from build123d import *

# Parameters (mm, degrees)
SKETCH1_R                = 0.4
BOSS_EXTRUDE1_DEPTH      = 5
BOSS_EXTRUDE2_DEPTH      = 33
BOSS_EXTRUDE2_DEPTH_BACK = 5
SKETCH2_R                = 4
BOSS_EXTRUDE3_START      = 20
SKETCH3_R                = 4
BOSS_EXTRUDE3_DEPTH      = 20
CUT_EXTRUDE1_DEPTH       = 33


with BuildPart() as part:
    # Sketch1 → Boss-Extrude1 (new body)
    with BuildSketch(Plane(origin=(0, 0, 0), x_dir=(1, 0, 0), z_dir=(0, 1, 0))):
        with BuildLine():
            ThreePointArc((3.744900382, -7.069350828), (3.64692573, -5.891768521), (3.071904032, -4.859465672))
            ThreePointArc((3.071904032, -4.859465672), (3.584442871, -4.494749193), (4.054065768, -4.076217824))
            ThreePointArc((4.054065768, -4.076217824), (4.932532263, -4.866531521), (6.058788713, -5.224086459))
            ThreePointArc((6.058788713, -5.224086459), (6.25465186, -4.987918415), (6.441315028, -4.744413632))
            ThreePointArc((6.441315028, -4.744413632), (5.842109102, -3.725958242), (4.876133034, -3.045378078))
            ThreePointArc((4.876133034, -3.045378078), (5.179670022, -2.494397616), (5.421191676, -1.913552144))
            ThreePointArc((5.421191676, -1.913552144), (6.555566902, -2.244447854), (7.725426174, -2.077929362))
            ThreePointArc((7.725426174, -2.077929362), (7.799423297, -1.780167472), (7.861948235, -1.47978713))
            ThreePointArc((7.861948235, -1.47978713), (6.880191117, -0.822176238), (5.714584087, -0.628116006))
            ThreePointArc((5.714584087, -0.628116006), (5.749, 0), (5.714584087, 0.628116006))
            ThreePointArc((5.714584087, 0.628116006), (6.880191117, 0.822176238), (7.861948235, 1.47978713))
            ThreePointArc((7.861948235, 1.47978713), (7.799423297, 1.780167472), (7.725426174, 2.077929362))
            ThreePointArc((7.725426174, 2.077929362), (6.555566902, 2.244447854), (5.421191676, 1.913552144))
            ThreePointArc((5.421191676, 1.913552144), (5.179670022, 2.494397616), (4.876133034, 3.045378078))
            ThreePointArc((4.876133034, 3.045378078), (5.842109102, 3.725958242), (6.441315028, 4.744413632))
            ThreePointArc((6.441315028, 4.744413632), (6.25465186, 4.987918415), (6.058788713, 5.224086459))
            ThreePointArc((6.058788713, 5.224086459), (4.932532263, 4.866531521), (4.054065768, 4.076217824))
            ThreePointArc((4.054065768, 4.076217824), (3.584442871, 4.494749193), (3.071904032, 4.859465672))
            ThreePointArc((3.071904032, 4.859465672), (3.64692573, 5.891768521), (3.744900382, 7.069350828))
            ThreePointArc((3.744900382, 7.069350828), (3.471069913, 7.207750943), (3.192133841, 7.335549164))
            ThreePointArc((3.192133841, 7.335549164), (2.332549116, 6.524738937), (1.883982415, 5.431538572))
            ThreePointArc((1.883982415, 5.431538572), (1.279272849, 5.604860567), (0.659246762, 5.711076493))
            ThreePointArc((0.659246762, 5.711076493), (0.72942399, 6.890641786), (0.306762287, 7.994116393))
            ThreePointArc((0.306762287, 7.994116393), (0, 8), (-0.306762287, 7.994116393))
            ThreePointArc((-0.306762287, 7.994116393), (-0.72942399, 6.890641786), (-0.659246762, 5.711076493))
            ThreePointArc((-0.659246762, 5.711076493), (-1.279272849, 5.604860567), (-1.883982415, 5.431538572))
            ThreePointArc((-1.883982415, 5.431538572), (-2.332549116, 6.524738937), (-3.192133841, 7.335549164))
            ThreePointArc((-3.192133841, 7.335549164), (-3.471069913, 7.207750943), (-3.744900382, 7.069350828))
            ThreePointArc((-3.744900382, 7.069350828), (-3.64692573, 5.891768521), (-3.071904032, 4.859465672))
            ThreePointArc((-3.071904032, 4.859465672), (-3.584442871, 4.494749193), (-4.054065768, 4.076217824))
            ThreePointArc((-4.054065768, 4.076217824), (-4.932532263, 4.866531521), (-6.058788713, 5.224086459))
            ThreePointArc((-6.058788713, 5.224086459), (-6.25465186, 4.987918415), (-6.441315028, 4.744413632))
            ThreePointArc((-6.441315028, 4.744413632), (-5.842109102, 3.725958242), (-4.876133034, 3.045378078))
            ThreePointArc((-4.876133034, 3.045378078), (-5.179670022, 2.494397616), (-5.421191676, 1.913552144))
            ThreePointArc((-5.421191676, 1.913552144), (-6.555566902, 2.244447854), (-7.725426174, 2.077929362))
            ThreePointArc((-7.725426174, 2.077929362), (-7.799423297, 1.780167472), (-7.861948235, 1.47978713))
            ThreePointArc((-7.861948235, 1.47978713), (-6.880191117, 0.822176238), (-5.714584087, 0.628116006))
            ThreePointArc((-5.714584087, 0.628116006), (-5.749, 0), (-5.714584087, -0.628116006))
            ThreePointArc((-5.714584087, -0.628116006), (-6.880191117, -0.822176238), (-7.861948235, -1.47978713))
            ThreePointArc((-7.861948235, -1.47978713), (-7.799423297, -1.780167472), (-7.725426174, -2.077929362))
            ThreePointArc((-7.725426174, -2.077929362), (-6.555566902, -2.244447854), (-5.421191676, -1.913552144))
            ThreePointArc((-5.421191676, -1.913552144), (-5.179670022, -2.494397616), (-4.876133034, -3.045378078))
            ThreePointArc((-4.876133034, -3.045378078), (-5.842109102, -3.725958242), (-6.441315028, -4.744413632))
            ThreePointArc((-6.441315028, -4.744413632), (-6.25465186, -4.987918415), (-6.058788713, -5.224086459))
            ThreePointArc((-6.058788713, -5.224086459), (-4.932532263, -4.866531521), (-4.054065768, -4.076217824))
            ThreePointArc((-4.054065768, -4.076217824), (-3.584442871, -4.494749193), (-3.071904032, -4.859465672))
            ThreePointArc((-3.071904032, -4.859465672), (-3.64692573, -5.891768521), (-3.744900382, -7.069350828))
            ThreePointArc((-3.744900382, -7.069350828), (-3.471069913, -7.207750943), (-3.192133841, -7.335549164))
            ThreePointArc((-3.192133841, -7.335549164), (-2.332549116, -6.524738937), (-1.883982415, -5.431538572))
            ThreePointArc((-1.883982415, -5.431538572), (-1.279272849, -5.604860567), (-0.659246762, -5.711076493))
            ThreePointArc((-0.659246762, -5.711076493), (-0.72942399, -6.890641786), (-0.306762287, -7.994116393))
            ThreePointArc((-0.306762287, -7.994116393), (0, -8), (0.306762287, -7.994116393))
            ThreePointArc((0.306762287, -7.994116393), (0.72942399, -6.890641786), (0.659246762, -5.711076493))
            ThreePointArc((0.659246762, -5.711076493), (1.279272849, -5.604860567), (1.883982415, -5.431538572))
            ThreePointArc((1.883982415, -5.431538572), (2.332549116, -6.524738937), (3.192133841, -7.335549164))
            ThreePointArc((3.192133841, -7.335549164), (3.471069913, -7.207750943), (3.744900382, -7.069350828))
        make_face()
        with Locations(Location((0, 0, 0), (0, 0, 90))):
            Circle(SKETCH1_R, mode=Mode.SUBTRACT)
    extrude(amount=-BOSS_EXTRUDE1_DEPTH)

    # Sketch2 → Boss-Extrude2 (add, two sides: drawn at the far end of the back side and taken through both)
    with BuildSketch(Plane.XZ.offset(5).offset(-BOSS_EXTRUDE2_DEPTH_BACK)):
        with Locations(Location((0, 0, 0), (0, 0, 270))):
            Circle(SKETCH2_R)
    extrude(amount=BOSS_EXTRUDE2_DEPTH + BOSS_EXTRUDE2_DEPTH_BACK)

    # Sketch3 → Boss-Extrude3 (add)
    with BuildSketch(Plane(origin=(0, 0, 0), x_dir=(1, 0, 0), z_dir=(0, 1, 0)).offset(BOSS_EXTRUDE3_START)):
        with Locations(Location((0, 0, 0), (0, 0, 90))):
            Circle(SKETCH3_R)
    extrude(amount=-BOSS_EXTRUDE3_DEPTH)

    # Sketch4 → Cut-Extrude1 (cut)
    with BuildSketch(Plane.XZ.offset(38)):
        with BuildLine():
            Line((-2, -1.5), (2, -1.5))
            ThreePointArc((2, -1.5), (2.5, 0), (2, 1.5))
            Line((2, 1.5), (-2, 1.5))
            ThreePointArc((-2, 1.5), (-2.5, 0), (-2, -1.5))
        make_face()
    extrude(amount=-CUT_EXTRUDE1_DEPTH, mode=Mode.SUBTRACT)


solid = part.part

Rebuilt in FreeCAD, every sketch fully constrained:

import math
import FreeCAD as App
import Part
import Sketcher
from FreeCAD import Vector

doc = App.newDocument("Part")
body = doc.addObject("PartDesign::Body", "Body")

sketch1 = body.newObject("Sketcher::SketchObject", "Sketch")
sketch1.AttachmentSupport = (doc.getObject("XZ_Plane"), [""])
sketch1.MapMode = "FlatFace"
sketch1.addGeometry([
    Part.ArcOfCircle(Part.Circle(Vector(0.97, 6.71, 0), Vector(0, 0, 1), 2.8), math.radians(-41), math.radians(7)),
    Part.ArcOfCircle(Part.Circle(Vector(0, 0, 0), Vector(0, 0, 1), 5.75), math.radians(45.16), math.radians(57.7)),
    Part.ArcOfCircle(Part.Circle(Vector(6.32, 2.44, 0), Vector(0, 0, 1), 2.8), math.radians(95), math.radians(144)),
    Part.ArcOfCircle(Part.Circle(Vector(0, 0, 0), Vector(0, 0, 1), 8), math.radians(36.37), math.radians(40.77)),
    Part.ArcOfCircle(Part.Circle(Vector(3.78, 5.62, 0), Vector(0, 0, 1), 2.8), math.radians(-67), math.radians(-18)),
    Part.ArcOfCircle(Part.Circle(Vector(0, 0, 0), Vector(0, 0, 1), 5.75), math.radians(19.44), math.radians(31.99)),
    Part.ArcOfCircle(Part.Circle(Vector(6.75, -0.55, 0), Vector(0, 0, 1), 2.8), math.radians(70), math.radians(118)),
    Part.ArcOfCircle(Part.Circle(Vector(0, 0, 0), Vector(0, 0, 1), 8), math.radians(10.66), math.radians(15.05)),
    Part.ArcOfCircle(Part.Circle(Vector(5.85, 3.42, 0), Vector(0, 0, 1), 2.8), math.radians(-93), math.radians(-44)),
    Part.ArcOfCircle(Part.Circle(Vector(0, 0, 0), Vector(0, 0, 1), 5.75), math.radians(-6.27), math.radians(6.27)),
    Part.ArcOfCircle(Part.Circle(Vector(5.85, -3.42, 0), Vector(0, 0, 1), 2.8), math.radians(44), math.radians(93)),
    Part.ArcOfCircle(Part.Circle(Vector(0, 0, 0), Vector(0, 0, 1), 8), math.radians(-15.05), math.radians(-10.66)),
    Part.ArcOfCircle(Part.Circle(Vector(6.75, 0.55, 0), Vector(0, 0, 1), 2.8), math.radians(-118), math.radians(-70)),
    Part.ArcOfCircle(Part.Circle(Vector(0, 0, 0), Vector(0, 0, 1), 5.75), math.radians(-31.99), math.radians(-19.44)),
    Part.ArcOfCircle(Part.Circle(Vector(3.78, -5.62, 0), Vector(0, 0, 1), 2.8), math.radians(18), math.radians(67)),
    Part.ArcOfCircle(Part.Circle(Vector(0, 0, 0), Vector(0, 0, 1), 8), math.radians(-40.77), math.radians(-36.37)),
    Part.ArcOfCircle(Part.Circle(Vector(6.32, -2.44, 0), Vector(0, 0, 1), 2.8), math.radians(-144), math.radians(-95)),
    Part.ArcOfCircle(Part.Circle(Vector(0, 0, 0), Vector(0, 0, 1), 5.75), math.radians(-57.7), math.radians(-45.16)),
    Part.ArcOfCircle(Part.Circle(Vector(0.97, -6.71, 0), Vector(0, 0, 1), 2.8), math.radians(-7), math.radians(41)),
    Part.ArcOfCircle(Part.Circle(Vector(0, 0, 0), Vector(0, 0, 1), 8), math.radians(-66.48), math.radians(-62.09)),
    Part.ArcOfCircle(Part.Circle(Vector(4.64, -4.94, 0), Vector(0, 0, 1), 2.8), math.radians(-170), math.radians(-121)),
    Part.ArcOfCircle(Part.Circle(Vector(0, 0, 0), Vector(0, 0, 1), 5.75), math.radians(-83.42), math.radians(-70.87)),
    Part.ArcOfCircle(Part.Circle(Vector(-2.04, -6.46, 0), Vector(0, 0, 1), 2.8), math.radians(-33), math.radians(16)),
    Part.ArcOfCircle(Part.Circle(Vector(0, 0, 0), Vector(0, 0, 1), 8), math.radians(-92.2), math.radians(-87.8)),
    Part.ArcOfCircle(Part.Circle(Vector(2.04, -6.46, 0), Vector(0, 0, 1), 2.8), math.radians(164), math.radians(213)),
    Part.ArcOfCircle(Part.Circle(Vector(0, 0, 0), Vector(0, 0, 1), 5.75), math.radians(-109.13), math.radians(-96.58)),
    Part.ArcOfCircle(Part.Circle(Vector(-4.64, -4.94, 0), Vector(0, 0, 1), 2.8), math.radians(-59), math.radians(-10)),
    Part.ArcOfCircle(Part.Circle(Vector(0, 0, 0), Vector(0, 0, 1), 8), math.radians(-117.91), math.radians(-113.52)),
    Part.ArcOfCircle(Part.Circle(Vector(-0.97, -6.71, 0), Vector(0, 0, 1), 2.8), math.radians(139), math.radians(187)),
    Part.ArcOfCircle(Part.Circle(Vector(0, 0, 0), Vector(0, 0, 1), 5.75), math.radians(-134.84), math.radians(-122.3)),
    Part.ArcOfCircle(Part.Circle(Vector(-6.32, -2.44, 0), Vector(0, 0, 1), 2.8), math.radians(-85), math.radians(-36)),
    Part.ArcOfCircle(Part.Circle(Vector(0, 0, 0), Vector(0, 0, 1), 8), math.radians(-143.63), math.radians(-139.23)),
    Part.ArcOfCircle(Part.Circle(Vector(-3.78, -5.62, 0), Vector(0, 0, 1), 2.8), math.radians(113), math.radians(162)),
    Part.ArcOfCircle(Part.Circle(Vector(0, 0, 0), Vector(0, 0, 1), 5.75), math.radians(-160.56), math.radians(-148.01)),
    Part.ArcOfCircle(Part.Circle(Vector(-6.75, 0.55, 0), Vector(0, 0, 1), 2.8), math.radians(-110), math.radians(-62)),
    Part.ArcOfCircle(Part.Circle(Vector(0, 0, 0), Vector(0, 0, 1), 8), math.radians(-169.34), math.radians(-164.95)),
    Part.ArcOfCircle(Part.Circle(Vector(-5.85, -3.42, 0), Vector(0, 0, 1), 2.8), math.radians(87), math.radians(136)),
    Part.ArcOfCircle(Part.Circle(Vector(0, 0, 0), Vector(0, 0, 1), 5.75), math.radians(173.73), math.radians(186.27)),
    Part.ArcOfCircle(Part.Circle(Vector(-5.85, 3.42, 0), Vector(0, 0, 1), 2.8), math.radians(-136), math.radians(-87)),
    Part.ArcOfCircle(Part.Circle(Vector(0, 0, 0), Vector(0, 0, 1), 8), math.radians(164.95), math.radians(169.34)),
    Part.ArcOfCircle(Part.Circle(Vector(-6.75, -0.55, 0), Vector(0, 0, 1), 2.8), math.radians(62), math.radians(110)),
    Part.ArcOfCircle(Part.Circle(Vector(0, 0, 0), Vector(0, 0, 1), 5.75), math.radians(148.01), math.radians(160.56)),
    Part.ArcOfCircle(Part.Circle(Vector(-3.78, 5.62, 0), Vector(0, 0, 1), 2.8), math.radians(-162), math.radians(-113)),
    Part.ArcOfCircle(Part.Circle(Vector(0, 0, 0), Vector(0, 0, 1), 8), math.radians(139.23), math.radians(143.63)),
    Part.ArcOfCircle(Part.Circle(Vector(-6.32, 2.44, 0), Vector(0, 0, 1), 2.8), math.radians(36), math.radians(85)),
    Part.ArcOfCircle(Part.Circle(Vector(0, 0, 0), Vector(0, 0, 1), 5.75), math.radians(122.3), math.radians(134.84)),
    Part.ArcOfCircle(Part.Circle(Vector(-0.97, 6.71, 0), Vector(0, 0, 1), 2.8), math.radians(173), math.radians(221)),
    Part.ArcOfCircle(Part.Circle(Vector(0, 0, 0), Vector(0, 0, 1), 8), math.radians(113.52), math.radians(117.91)),
    Part.ArcOfCircle(Part.Circle(Vector(-4.64, 4.94, 0), Vector(0, 0, 1), 2.8), math.radians(10), math.radians(59)),
    Part.ArcOfCircle(Part.Circle(Vector(0, 0, 0), Vector(0, 0, 1), 5.75), math.radians(96.58), math.radians(109.13)),
    Part.ArcOfCircle(Part.Circle(Vector(2.04, 6.46, 0), Vector(0, 0, 1), 2.8), math.radians(147), math.radians(196)),
    Part.ArcOfCircle(Part.Circle(Vector(0, 0, 0), Vector(0, 0, 1), 8), math.radians(87.8), math.radians(92.2)),
    Part.ArcOfCircle(Part.Circle(Vector(-2.04, 6.46, 0), Vector(0, 0, 1), 2.8), math.radians(-16), math.radians(33)),
    Part.ArcOfCircle(Part.Circle(Vector(0, 0, 0), Vector(0, 0, 1), 5.75), math.radians(70.87), math.radians(83.42)),
    Part.ArcOfCircle(Part.Circle(Vector(4.64, 4.94, 0), Vector(0, 0, 1), 2.8), math.radians(121), math.radians(170)),
    Part.ArcOfCircle(Part.Circle(Vector(0, 0, 0), Vector(0, 0, 1), 8), math.radians(62.09), math.radians(66.48)),
    Part.Circle(Vector(0, 0, 0), Vector(0, 0, 1), 0.4),
], False)
sketch1.addConstraint([
    Sketcher.Constraint("Coincident", 0, 1, 1, 2),
    Sketcher.Constraint("Coincident", 1, 1, 2, 2),
    Sketcher.Constraint("Coincident", 2, 1, 3, 2),
    Sketcher.Constraint("Coincident", 3, 1, 4, 2),
    Sketcher.Constraint("Coincident", 4, 1, 5, 2),
    Sketcher.Constraint("Coincident", 5, 1, 6, 2),
    Sketcher.Constraint("Coincident", 6, 1, 7, 2),
    Sketcher.Constraint("Coincident", 7, 1, 8, 2),
    Sketcher.Constraint("Coincident", 8, 1, 9, 2),
    Sketcher.Constraint("Coincident", 9, 1, 10, 2),
    Sketcher.Constraint("Coincident", 10, 1, 11, 2),
    Sketcher.Constraint("Coincident", 11, 1, 12, 2),
    Sketcher.Constraint("Coincident", 12, 1, 13, 2),
    Sketcher.Constraint("Coincident", 13, 1, 14, 2),
    Sketcher.Constraint("Coincident", 14, 1, 15, 2),
    Sketcher.Constraint("Coincident", 15, 1, 16, 2),
    Sketcher.Constraint("Coincident", 16, 1, 17, 2),
    Sketcher.Constraint("Coincident", 17, 1, 18, 2),
    Sketcher.Constraint("Coincident", 18, 1, 19, 2),
    Sketcher.Constraint("Coincident", 19, 1, 20, 2),
    Sketcher.Constraint("Coincident", 20, 1, 21, 2),
    Sketcher.Constraint("Coincident", 21, 1, 22, 2),
    Sketcher.Constraint("Coincident", 22, 1, 23, 2),
    Sketcher.Constraint("Coincident", 23, 1, 24, 2),
    Sketcher.Constraint("Coincident", 24, 1, 25, 2),
    Sketcher.Constraint("Coincident", 25, 1, 26, 2),
    Sketcher.Constraint("Coincident", 26, 1, 27, 2),
    Sketcher.Constraint("Coincident", 27, 1, 28, 2),
    Sketcher.Constraint("Coincident", 28, 1, 29, 2),
    Sketcher.Constraint("Coincident", 29, 1, 30, 2),
    Sketcher.Constraint("Coincident", 30, 1, 31, 2),
    Sketcher.Constraint("Coincident", 31, 1, 32, 2),
    Sketcher.Constraint("Coincident", 32, 1, 33, 2),
    Sketcher.Constraint("Coincident", 33, 1, 34, 2),
    Sketcher.Constraint("Coincident", 34, 1, 35, 2),
    Sketcher.Constraint("Coincident", 35, 1, 36, 2),
    Sketcher.Constraint("Coincident", 36, 1, 37, 2),
    Sketcher.Constraint("Coincident", 37, 1, 38, 2),
    Sketcher.Constraint("Coincident", 38, 1, 39, 2),
    Sketcher.Constraint("Coincident", 39, 1, 40, 2),
    Sketcher.Constraint("Coincident", 40, 1, 41, 2),
    Sketcher.Constraint("Coincident", 41, 1, 42, 2),
    Sketcher.Constraint("Coincident", 42, 1, 43, 2),
    Sketcher.Constraint("Coincident", 43, 1, 44, 2),
    Sketcher.Constraint("Coincident", 44, 1, 45, 2),
    Sketcher.Constraint("Coincident", 45, 1, 46, 2),
    Sketcher.Constraint("Coincident", 46, 1, 47, 2),
    Sketcher.Constraint("Coincident", 47, 1, 48, 2),
    Sketcher.Constraint("Coincident", 48, 1, 49, 2),
    Sketcher.Constraint("Coincident", 49, 1, 50, 2),
    Sketcher.Constraint("Coincident", 50, 1, 51, 2),
    Sketcher.Constraint("Coincident", 51, 1, 52, 2),
    Sketcher.Constraint("Coincident", 52, 1, 53, 2),
    Sketcher.Constraint("Coincident", 53, 1, 54, 2),
    Sketcher.Constraint("Coincident", 54, 1, 55, 2),
    Sketcher.Constraint("Coincident", 55, 1, 0, 2),
    Sketcher.Constraint("Coincident", 1, 3, -1, 1),
    Sketcher.Constraint("Coincident", 3, 3, -1, 1),
    Sketcher.Constraint("Coincident", 5, 3, -1, 1),
    Sketcher.Constraint("Coincident", 7, 3, -1, 1),
    Sketcher.Constraint("Coincident", 9, 3, -1, 1),
    Sketcher.Constraint("Coincident", 11, 3, -1, 1),
    Sketcher.Constraint("Coincident", 13, 3, -1, 1),
    Sketcher.Constraint("Coincident", 15, 3, -1, 1),
    Sketcher.Constraint("Coincident", 17, 3, -1, 1),
    Sketcher.Constraint("Coincident", 19, 3, -1, 1),
    Sketcher.Constraint("Coincident", 21, 3, -1, 1),
    Sketcher.Constraint("Coincident", 23, 3, -1, 1),
    Sketcher.Constraint("Coincident", 25, 3, -1, 1),
    Sketcher.Constraint("Coincident", 27, 3, -1, 1),
    Sketcher.Constraint("Coincident", 29, 3, -1, 1),
    Sketcher.Constraint("Coincident", 31, 3, -1, 1),
    Sketcher.Constraint("Coincident", 33, 3, -1, 1),
    Sketcher.Constraint("Coincident", 35, 3, -1, 1),
    Sketcher.Constraint("Coincident", 37, 3, -1, 1),
    Sketcher.Constraint("Coincident", 39, 3, -1, 1),
    Sketcher.Constraint("Coincident", 41, 3, -1, 1),
    Sketcher.Constraint("Coincident", 43, 3, -1, 1),
    Sketcher.Constraint("Coincident", 45, 3, -1, 1),
    Sketcher.Constraint("Coincident", 47, 3, -1, 1),
    Sketcher.Constraint("Coincident", 49, 3, -1, 1),
    Sketcher.Constraint("Coincident", 51, 3, -1, 1),
    Sketcher.Constraint("Coincident", 53, 3, -1, 1),
    Sketcher.Constraint("Coincident", 55, 3, -1, 1),
    Sketcher.Constraint("Coincident", 56, 3, -1, 1),
    Sketcher.Constraint("Equal", 0, 2),
    Sketcher.Constraint("Equal", 2, 4),
    Sketcher.Constraint("Equal", 1, 5),
    Sketcher.Constraint("Equal", 4, 6),
    Sketcher.Constraint("Equal", 3, 7),
    Sketcher.Constraint("Equal", 6, 8),
    Sketcher.Constraint("Equal", 5, 9),
    Sketcher.Constraint("Equal", 8, 10),
    Sketcher.Constraint("Equal", 7, 11),
    Sketcher.Constraint("Equal", 10, 12),
    Sketcher.Constraint("Equal", 9, 13),
    Sketcher.Constraint("Equal", 12, 14),
    Sketcher.Constraint("Equal", 11, 15),
    Sketcher.Constraint("Equal", 14, 16),
    Sketcher.Constraint("Equal", 13, 17),
    Sketcher.Constraint("Equal", 16, 18),
    Sketcher.Constraint("Equal", 15, 19),
    Sketcher.Constraint("Equal", 18, 20),
    Sketcher.Constraint("Equal", 17, 21),
    Sketcher.Constraint("Equal", 20, 22),
    Sketcher.Constraint("Equal", 19, 23),
    Sketcher.Constraint("Equal", 22, 24),
    Sketcher.Constraint("Equal", 21, 25),
    Sketcher.Constraint("Equal", 24, 26),
    Sketcher.Constraint("Equal", 23, 27),
    Sketcher.Constraint("Equal", 26, 28),
    Sketcher.Constraint("Equal", 25, 29),
    Sketcher.Constraint("Equal", 28, 30),
    Sketcher.Constraint("Equal", 27, 31),
    Sketcher.Constraint("Equal", 30, 32),
    Sketcher.Constraint("Equal", 29, 33),
    Sketcher.Constraint("Equal", 32, 34),
    Sketcher.Constraint("Equal", 31, 35),
    Sketcher.Constraint("Equal", 34, 36),
    Sketcher.Constraint("Equal", 33, 37),
    Sketcher.Constraint("Equal", 36, 38),
    Sketcher.Constraint("Equal", 35, 39),
    Sketcher.Constraint("Equal", 38, 40),
    Sketcher.Constraint("Equal", 37, 41),
    Sketcher.Constraint("Equal", 40, 42),
    Sketcher.Constraint("Equal", 39, 43),
    Sketcher.Constraint("Equal", 42, 44),
    Sketcher.Constraint("Equal", 41, 45),
    Sketcher.Constraint("Equal", 44, 46),
    Sketcher.Constraint("Equal", 43, 47),
    Sketcher.Constraint("Equal", 46, 48),
    Sketcher.Constraint("Equal", 45, 49),
    Sketcher.Constraint("Equal", 48, 50),
    Sketcher.Constraint("Equal", 47, 51),
    Sketcher.Constraint("Equal", 50, 52),
    Sketcher.Constraint("Equal", 49, 53),
    Sketcher.Constraint("Equal", 52, 54),
    Sketcher.Constraint("Equal", 51, 55),
    Sketcher.Constraint("Symmetric", 0, 3, 28, 3, -1, 1),
    Sketcher.Constraint("Symmetric", 2, 3, 30, 3, -1, 1),
    Sketcher.Constraint("Symmetric", 4, 3, 32, 3, -1, 1),
    Sketcher.Constraint("Symmetric", 6, 3, 34, 3, -1, 1),
    Sketcher.Constraint("Symmetric", 8, 3, 36, 3, -1, 1),
    Sketcher.Constraint("Symmetric", 10, 3, 38, 3, -1, 1),
    Sketcher.Constraint("Symmetric", 12, 3, 40, 3, -1, 1),
    Sketcher.Constraint("Symmetric", 14, 3, 42, 3, -1, 1),
    Sketcher.Constraint("Symmetric", 16, 3, 44, 3, -1, 1),
    Sketcher.Constraint("Symmetric", 18, 3, 46, 3, -1, 1),
    Sketcher.Constraint("Symmetric", 20, 3, 48, 3, -1, 1),
    Sketcher.Constraint("Symmetric", 22, 3, 50, 3, -1, 1),
    Sketcher.Constraint("Symmetric", 24, 3, 52, 3, -1, 1),
    Sketcher.Constraint("Symmetric", 26, 3, 54, 3, -1, 1),
    Sketcher.Constraint("Symmetric", 22, 3, 24, 3, -2),
    Sketcher.Constraint("Symmetric", 20, 3, 26, 3, -2),
    Sketcher.Constraint("Symmetric", 18, 3, 28, 3, -2),
    Sketcher.Constraint("Symmetric", 16, 3, 30, 3, -2),
    Sketcher.Constraint("Symmetric", 14, 3, 32, 3, -2),
    Sketcher.Constraint("Symmetric", 12, 3, 34, 3, -2),
    Sketcher.Constraint("Symmetric", 10, 3, 36, 3, -2),
    Sketcher.Constraint("Radius", 3, 8.0),
    Sketcher.Constraint("Diameter", 56, 0.8),
    Sketcher.Constraint("Radius", 0, 2.8),
    Sketcher.Constraint("Radius", 1, 5.749),
    Sketcher.Constraint("DistanceX", -1, 1, 18, 1, 3.7449),
    Sketcher.Constraint("DistanceX", -1, 1, 0, 3, 0.968382),
    Sketcher.Constraint("DistanceY", -1, 1, 2, 3, 2.436659),
    Sketcher.Constraint("DistanceY", -1, 1, 8, 3, 3.42494),
    Sketcher.Constraint("DistanceX", -1, 1, 20, 3, 4.640351),
    Sketcher.Constraint("DistanceX", 22, 3, -1, 1, 2.037789),
    Sketcher.Constraint("DistanceX", -1, 1, 2, 1, 6.058789),
    Sketcher.Constraint("DistanceY", -1, 1, 4, 1, 3.045378),
    Sketcher.Constraint("DistanceX", -1, 1, 5, 1, 5.421192),
    Sketcher.Constraint("DistanceY", -1, 1, 6, 1, 2.077929),
    Sketcher.Constraint("DistanceX", -1, 1, 7, 1, 7.861948),
    Sketcher.Constraint("DistanceY", 19, 1, -1, 1, 7.335549),
    Sketcher.Constraint("DistanceX", -1, 1, 4, 3, 3.782752),
    Sketcher.Constraint("DistanceY", 22, 3, -1, 1, 6.463405),
])
pad1 = body.newObject("PartDesign::Pad", "Pad")
pad1.Profile = sketch1
pad1.Length = 5

sketch2 = body.newObject("Sketcher::SketchObject", "Sketch001")
sketch2.AttachmentSupport = (doc.getObject("XZ_Plane"), [""])
sketch2.MapMode = "FlatFace"
sketch2.AttachmentOffset = App.Placement(Vector(0, 0, 5), App.Rotation())
sketch2.addGeometry(Part.Circle(Vector(0, 0, 0), Vector(0, 0, 1), 4), False)
sketch2.addConstraint([
    Sketcher.Constraint("Coincident", 0, 3, -1, 1),
    Sketcher.Constraint("Diameter", 0, 8.0),
])
pad2 = body.newObject("PartDesign::Pad", "Pad001")
pad2.Profile = sketch2
pad2.Type = "TwoLengths"
pad2.Length = 33
pad2.Length2 = 5

sketch3 = body.newObject("Sketcher::SketchObject", "Sketch002")
sketch3.AttachmentSupport = (doc.getObject("XZ_Plane"), [""])
sketch3.MapMode = "FlatFace"
sketch3.AttachmentOffset = App.Placement(Vector(0, 0, -20), App.Rotation())
sketch3.addGeometry(Part.Circle(Vector(0, 0, 0), Vector(0, 0, 1), 4), False)
sketch3.addConstraint([
    Sketcher.Constraint("Coincident", 0, 3, -1, 1),
    Sketcher.Constraint("Diameter", 0, 8.0),
])
pad3 = body.newObject("PartDesign::Pad", "Pad002")
pad3.Profile = sketch3
pad3.Length = 20

sketch4 = body.newObject("Sketcher::SketchObject", "Sketch003")
sketch4.AttachmentSupport = (doc.getObject("XZ_Plane"), [""])
sketch4.MapMode = "FlatFace"
sketch4.AttachmentOffset = App.Placement(Vector(0, 0, 38), App.Rotation())
sketch4.addGeometry([
    Part.LineSegment(Vector(-2, -1.5, 0), Vector(2, -1.5, 0)),
    Part.ArcOfCircle(Part.Circle(Vector(0, 0, 0), Vector(0, 0, 1), 2.5), math.radians(-37), math.radians(37)),
    Part.LineSegment(Vector(2, 1.5, 0), Vector(-2, 1.5, 0)),
    Part.ArcOfCircle(Part.Circle(Vector(0, 0, 0), Vector(0, 0, 1), 2.5), math.radians(143), math.radians(217)),
], False)
sketch4.addConstraint([
    Sketcher.Constraint("Coincident", 0, 2, 1, 1),
    Sketcher.Constraint("Coincident", 1, 2, 2, 1),
    Sketcher.Constraint("Coincident", 2, 2, 3, 1),
    Sketcher.Constraint("Coincident", 3, 2, 0, 1),
    Sketcher.Constraint("Horizontal", 0),
    Sketcher.Constraint("Horizontal", 2),
    Sketcher.Constraint("Coincident", 1, 3, -1, 1),
    Sketcher.Constraint("Coincident", 3, 3, -1, 1),
    Sketcher.Constraint("Equal", 1, 3),
    Sketcher.Constraint("Vertical", 0, 2, 1, 2),
    Sketcher.Constraint("Radius", 1, 2.5),
    Sketcher.Constraint("DistanceX", 0, 1, 0, 2, 4.0),
])
pocket1 = body.newObject("PartDesign::Pocket", "Pocket")
pocket1.Profile = sketch4
pocket1.Length = 33

doc.recompute()
